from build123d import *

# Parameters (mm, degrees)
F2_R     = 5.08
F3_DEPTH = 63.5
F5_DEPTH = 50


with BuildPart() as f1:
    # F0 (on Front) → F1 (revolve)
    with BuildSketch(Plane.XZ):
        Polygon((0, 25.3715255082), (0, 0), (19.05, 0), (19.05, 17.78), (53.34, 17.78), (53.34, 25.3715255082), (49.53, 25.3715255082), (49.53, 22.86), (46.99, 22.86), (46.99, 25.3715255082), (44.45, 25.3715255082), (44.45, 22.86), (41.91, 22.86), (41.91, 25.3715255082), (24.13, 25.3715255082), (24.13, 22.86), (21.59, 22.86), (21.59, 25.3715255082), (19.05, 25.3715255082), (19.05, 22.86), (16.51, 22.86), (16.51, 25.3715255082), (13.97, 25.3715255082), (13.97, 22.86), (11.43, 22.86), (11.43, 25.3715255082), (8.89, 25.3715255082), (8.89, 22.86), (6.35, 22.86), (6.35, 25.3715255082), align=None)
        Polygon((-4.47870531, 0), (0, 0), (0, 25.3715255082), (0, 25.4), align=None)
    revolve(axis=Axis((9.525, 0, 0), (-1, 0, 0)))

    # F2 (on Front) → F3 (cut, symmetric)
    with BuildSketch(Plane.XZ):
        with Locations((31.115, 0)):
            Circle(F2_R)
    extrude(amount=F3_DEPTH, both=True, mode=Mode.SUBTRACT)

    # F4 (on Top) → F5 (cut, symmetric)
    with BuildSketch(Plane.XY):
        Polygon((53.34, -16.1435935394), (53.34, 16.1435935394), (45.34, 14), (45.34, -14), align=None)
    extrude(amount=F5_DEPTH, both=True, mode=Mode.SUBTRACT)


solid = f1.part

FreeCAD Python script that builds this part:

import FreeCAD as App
import Part
import Sketcher
Q = App.Units.Quantity


def add_polygon(sketch, points):
    """Adds a closed chain of lines whose ends are joined by coincident constraints."""
    first, n = sketch.GeometryCount, len(points)
    for a, b in zip(points, points[1:] + points[:1]):
        sketch.addGeometry(Part.LineSegment(App.Vector(*a, 0), App.Vector(*b, 0)), False)
    for i in range(n):
        sketch.addConstraint(Sketcher.Constraint("Coincident", first + i, 2, first + (i + 1) % n, 1))

doc = App.newDocument("Part")
body = doc.addObject("PartDesign::Body", "Body")

sketch1 = doc.addObject("Sketcher::SketchObject", "Sketch")
body.addObject(sketch1)
sketch1.AttachmentSupport = (doc.XZ_Plane, [""])
sketch1.MapMode = "FlatFace"
add_polygon(sketch1, [(19.05, 0), (19.05, 17.78), (53.34, 17.78), (53.34, 25.372), (49.53, 25.372), (49.53, 22.86), (46.99, 22.86), (46.99, 25.372), (44.45, 25.372), (44.45, 22.86), (41.91, 22.86), (41.91, 25.372), (24.13, 25.372), (24.13, 22.86), (21.59, 22.86), (21.59, 25.372), (19.05, 25.372), (19.05, 22.86), (16.51, 22.86), (16.51, 25.372), (13.97, 25.372), (13.97, 22.86), (11.43, 22.86), (11.43, 25.372), (8.89, 25.372), (8.89, 22.86), (6.35, 22.86), (6.35, 25.372), (0, 25.372), (0, 25.4), (-4.479, 0)])
sketch1.addConstraint([
    Sketcher.Constraint("Vertical", 0),
    Sketcher.Constraint("Horizontal", 1),
    Sketcher.Constraint("Vertical", 2),
    Sketcher.Constraint("Horizontal", 3),
    Sketcher.Constraint("Vertical", 4),
    Sketcher.Constraint("Horizontal", 5),
    Sketcher.Constraint("Vertical", 6),
    Sketcher.Constraint("Horizontal", 7),
    Sketcher.Constraint("Vertical", 8),
    Sketcher.Constraint("Horizontal", 9),
    Sketcher.Constraint("Vertical", 10),
    Sketcher.Constraint("Horizontal", 11),
    Sketcher.Constraint("Vertical", 12),
    Sketcher.Constraint("Horizontal", 13),
    Sketcher.Constraint("Vertical", 14),
    Sketcher.Constraint("Horizontal", 15),
    Sketcher.Constraint("Vertical", 16),
    Sketcher.Constraint("Horizontal", 17),
    Sketcher.Constraint("Vertical", 18),
    Sketcher.Constraint("Horizontal", 19),
    Sketcher.Constraint("Vertical", 20),
    Sketcher.Constraint("Horizontal", 21),
    Sketcher.Constraint("Vertical", 22),
    Sketcher.Constraint("Horizontal", 23),
    Sketcher.Constraint("Vertical", 24),
    Sketcher.Constraint("Horizontal", 25),
    Sketcher.Constraint("Vertical", 26),
    Sketcher.Constraint("Horizontal", 27),
    Sketcher.Constraint("Vertical", 28),
    Sketcher.Constraint("Horizontal", 30),
    Sketcher.Constraint("PointOnObject", 27, 2, -2),
    Sketcher.Constraint("PointOnObject", 29, 2, -1),
    Sketcher.Constraint("Horizontal", 3, 2, 6, 2),
    Sketcher.Constraint("Horizontal", 5, 2, 8, 2),
    Sketcher.Constraint("Horizontal", 7, 2, 10, 2),
    Sketcher.Constraint("Horizontal", 9, 2, 12, 2),
    Sketcher.Constraint("Horizontal", 11, 2, 14, 2),
    Sketcher.Constraint("Horizontal", 13, 2, 16, 2),
    Sketcher.Constraint("Horizontal", 15, 2, 18, 2),
    Sketcher.Constraint("Horizontal", 17, 2, 20, 2),
    Sketcher.Constraint("Horizontal", 19, 2, 22, 2),
    Sketcher.Constraint("Horizontal", 21, 2, 24, 2),
    Sketcher.Constraint("Horizontal", 23, 2, 26, 2),
    Sketcher.Constraint("Vertical", 0, 2, 15, 2),
    Sketcher.Constraint("Equal", 5, 7),
    Sketcher.Constraint("Equal", 7, 9),
    Sketcher.Constraint("Equal", 9, 13),
    Sketcher.Constraint("Equal", 13, 15),
    Sketcher.Constraint("Equal", 15, 17),
    Sketcher.Constraint("Equal", 17, 19),
    Sketcher.Constraint("Equal", 19, 21),
    Sketcher.Constraint("Equal", 21, 23),
    Sketcher.Constraint("Equal", 23, 25),
    Sketcher.Constraint("Equal", 11, 0),
    Sketcher.Constraint("DistanceX", 5, 2, 5, 1, Q("0.1 in")),
    Sketcher.Constraint("DistanceX", 11, 2, 11, 1, Q("0.7 in")),
    Sketcher.Constraint("DistanceY", -1, 1, 28, 2, Q("1 in")),
    Sketcher.Constraint("Angle", 29, Q("-100 deg")),
    Sketcher.Constraint("DistanceX", 1, 1, 1, 2, Q("1.35 in")),
    Sketcher.Constraint("DistanceX", 27, 2, 27, 1, Q("0.25 in")),
    Sketcher.Constraint("DistanceY", -1, 1, 4, 2, Q("0.9 in")),
    Sketcher.Constraint("DistanceY", 2, 1, 2, 2, 7.591526),
])
revolution = doc.addObject("PartDesign::Revolution", "Revolution")
body.addObject(revolution)
revolution.Profile = sketch1
revolution.ReferenceAxis = (sketch1, ["H_Axis"])
revolution.Angle = 360

sketch2 = doc.addObject("Sketcher::SketchObject", "Sketch001")
body.addObject(sketch2)
sketch2.AttachmentSupport = (doc.XZ_Plane, [""])
sketch2.MapMode = "FlatFace"
sketch2.addGeometry(Part.Circle(App.Vector(31, 0, 0), App.Vector(0, 0, 1), 5), False)
sketch2.addConstraint([
    Sketcher.Constraint("PointOnObject", 0, 3, -1),
    Sketcher.Constraint("Diameter", 0, Q("0.4 in")),
    Sketcher.Constraint("DistanceX", -1, 1, 0, 3, Q("1.225 in")),
])
pocket1 = doc.addObject("PartDesign::Pocket", "Pocket")
body.addObject(pocket1)
pocket1.Profile = sketch2
pocket1.Length = Q("5 in")
pocket1.Midplane = True

sketch3 = doc.addObject("Sketcher::SketchObject", "Sketch002")
body.addObject(sketch3)
sketch3.AttachmentSupport = (doc.XY_Plane, [""])
sketch3.MapMode = "FlatFace"
add_polygon(sketch3, [(53, -16), (53, 16), (45, 14), (45, -14)])
sketch3.addConstraint([
    Sketcher.Constraint("Vertical", 0),
    Sketcher.Constraint("Vertical", 2),
    Sketcher.Constraint("Equal", 1, 3),
    Sketcher.Constraint("Angle", 1, Q("-165 deg")),
    Sketcher.Constraint("DistanceX", -1, 1, 0, 2, Q("2.1 in")),
    Sketcher.Constraint("DistanceY", 2, 2, 2, 1, 28.0),
    Sketcher.Constraint("DistanceX", -1, 1, 1, 2, 45.34),
    Sketcher.Constraint("DistanceY", -1, 1, 1, 2, 14.0),
])
pocket2 = doc.addObject("PartDesign::Pocket", "Pocket001")
body.addObject(pocket2)
pocket2.Profile = sketch3
pocket2.Length = 100
pocket2.Midplane = True

doc.recompute()
